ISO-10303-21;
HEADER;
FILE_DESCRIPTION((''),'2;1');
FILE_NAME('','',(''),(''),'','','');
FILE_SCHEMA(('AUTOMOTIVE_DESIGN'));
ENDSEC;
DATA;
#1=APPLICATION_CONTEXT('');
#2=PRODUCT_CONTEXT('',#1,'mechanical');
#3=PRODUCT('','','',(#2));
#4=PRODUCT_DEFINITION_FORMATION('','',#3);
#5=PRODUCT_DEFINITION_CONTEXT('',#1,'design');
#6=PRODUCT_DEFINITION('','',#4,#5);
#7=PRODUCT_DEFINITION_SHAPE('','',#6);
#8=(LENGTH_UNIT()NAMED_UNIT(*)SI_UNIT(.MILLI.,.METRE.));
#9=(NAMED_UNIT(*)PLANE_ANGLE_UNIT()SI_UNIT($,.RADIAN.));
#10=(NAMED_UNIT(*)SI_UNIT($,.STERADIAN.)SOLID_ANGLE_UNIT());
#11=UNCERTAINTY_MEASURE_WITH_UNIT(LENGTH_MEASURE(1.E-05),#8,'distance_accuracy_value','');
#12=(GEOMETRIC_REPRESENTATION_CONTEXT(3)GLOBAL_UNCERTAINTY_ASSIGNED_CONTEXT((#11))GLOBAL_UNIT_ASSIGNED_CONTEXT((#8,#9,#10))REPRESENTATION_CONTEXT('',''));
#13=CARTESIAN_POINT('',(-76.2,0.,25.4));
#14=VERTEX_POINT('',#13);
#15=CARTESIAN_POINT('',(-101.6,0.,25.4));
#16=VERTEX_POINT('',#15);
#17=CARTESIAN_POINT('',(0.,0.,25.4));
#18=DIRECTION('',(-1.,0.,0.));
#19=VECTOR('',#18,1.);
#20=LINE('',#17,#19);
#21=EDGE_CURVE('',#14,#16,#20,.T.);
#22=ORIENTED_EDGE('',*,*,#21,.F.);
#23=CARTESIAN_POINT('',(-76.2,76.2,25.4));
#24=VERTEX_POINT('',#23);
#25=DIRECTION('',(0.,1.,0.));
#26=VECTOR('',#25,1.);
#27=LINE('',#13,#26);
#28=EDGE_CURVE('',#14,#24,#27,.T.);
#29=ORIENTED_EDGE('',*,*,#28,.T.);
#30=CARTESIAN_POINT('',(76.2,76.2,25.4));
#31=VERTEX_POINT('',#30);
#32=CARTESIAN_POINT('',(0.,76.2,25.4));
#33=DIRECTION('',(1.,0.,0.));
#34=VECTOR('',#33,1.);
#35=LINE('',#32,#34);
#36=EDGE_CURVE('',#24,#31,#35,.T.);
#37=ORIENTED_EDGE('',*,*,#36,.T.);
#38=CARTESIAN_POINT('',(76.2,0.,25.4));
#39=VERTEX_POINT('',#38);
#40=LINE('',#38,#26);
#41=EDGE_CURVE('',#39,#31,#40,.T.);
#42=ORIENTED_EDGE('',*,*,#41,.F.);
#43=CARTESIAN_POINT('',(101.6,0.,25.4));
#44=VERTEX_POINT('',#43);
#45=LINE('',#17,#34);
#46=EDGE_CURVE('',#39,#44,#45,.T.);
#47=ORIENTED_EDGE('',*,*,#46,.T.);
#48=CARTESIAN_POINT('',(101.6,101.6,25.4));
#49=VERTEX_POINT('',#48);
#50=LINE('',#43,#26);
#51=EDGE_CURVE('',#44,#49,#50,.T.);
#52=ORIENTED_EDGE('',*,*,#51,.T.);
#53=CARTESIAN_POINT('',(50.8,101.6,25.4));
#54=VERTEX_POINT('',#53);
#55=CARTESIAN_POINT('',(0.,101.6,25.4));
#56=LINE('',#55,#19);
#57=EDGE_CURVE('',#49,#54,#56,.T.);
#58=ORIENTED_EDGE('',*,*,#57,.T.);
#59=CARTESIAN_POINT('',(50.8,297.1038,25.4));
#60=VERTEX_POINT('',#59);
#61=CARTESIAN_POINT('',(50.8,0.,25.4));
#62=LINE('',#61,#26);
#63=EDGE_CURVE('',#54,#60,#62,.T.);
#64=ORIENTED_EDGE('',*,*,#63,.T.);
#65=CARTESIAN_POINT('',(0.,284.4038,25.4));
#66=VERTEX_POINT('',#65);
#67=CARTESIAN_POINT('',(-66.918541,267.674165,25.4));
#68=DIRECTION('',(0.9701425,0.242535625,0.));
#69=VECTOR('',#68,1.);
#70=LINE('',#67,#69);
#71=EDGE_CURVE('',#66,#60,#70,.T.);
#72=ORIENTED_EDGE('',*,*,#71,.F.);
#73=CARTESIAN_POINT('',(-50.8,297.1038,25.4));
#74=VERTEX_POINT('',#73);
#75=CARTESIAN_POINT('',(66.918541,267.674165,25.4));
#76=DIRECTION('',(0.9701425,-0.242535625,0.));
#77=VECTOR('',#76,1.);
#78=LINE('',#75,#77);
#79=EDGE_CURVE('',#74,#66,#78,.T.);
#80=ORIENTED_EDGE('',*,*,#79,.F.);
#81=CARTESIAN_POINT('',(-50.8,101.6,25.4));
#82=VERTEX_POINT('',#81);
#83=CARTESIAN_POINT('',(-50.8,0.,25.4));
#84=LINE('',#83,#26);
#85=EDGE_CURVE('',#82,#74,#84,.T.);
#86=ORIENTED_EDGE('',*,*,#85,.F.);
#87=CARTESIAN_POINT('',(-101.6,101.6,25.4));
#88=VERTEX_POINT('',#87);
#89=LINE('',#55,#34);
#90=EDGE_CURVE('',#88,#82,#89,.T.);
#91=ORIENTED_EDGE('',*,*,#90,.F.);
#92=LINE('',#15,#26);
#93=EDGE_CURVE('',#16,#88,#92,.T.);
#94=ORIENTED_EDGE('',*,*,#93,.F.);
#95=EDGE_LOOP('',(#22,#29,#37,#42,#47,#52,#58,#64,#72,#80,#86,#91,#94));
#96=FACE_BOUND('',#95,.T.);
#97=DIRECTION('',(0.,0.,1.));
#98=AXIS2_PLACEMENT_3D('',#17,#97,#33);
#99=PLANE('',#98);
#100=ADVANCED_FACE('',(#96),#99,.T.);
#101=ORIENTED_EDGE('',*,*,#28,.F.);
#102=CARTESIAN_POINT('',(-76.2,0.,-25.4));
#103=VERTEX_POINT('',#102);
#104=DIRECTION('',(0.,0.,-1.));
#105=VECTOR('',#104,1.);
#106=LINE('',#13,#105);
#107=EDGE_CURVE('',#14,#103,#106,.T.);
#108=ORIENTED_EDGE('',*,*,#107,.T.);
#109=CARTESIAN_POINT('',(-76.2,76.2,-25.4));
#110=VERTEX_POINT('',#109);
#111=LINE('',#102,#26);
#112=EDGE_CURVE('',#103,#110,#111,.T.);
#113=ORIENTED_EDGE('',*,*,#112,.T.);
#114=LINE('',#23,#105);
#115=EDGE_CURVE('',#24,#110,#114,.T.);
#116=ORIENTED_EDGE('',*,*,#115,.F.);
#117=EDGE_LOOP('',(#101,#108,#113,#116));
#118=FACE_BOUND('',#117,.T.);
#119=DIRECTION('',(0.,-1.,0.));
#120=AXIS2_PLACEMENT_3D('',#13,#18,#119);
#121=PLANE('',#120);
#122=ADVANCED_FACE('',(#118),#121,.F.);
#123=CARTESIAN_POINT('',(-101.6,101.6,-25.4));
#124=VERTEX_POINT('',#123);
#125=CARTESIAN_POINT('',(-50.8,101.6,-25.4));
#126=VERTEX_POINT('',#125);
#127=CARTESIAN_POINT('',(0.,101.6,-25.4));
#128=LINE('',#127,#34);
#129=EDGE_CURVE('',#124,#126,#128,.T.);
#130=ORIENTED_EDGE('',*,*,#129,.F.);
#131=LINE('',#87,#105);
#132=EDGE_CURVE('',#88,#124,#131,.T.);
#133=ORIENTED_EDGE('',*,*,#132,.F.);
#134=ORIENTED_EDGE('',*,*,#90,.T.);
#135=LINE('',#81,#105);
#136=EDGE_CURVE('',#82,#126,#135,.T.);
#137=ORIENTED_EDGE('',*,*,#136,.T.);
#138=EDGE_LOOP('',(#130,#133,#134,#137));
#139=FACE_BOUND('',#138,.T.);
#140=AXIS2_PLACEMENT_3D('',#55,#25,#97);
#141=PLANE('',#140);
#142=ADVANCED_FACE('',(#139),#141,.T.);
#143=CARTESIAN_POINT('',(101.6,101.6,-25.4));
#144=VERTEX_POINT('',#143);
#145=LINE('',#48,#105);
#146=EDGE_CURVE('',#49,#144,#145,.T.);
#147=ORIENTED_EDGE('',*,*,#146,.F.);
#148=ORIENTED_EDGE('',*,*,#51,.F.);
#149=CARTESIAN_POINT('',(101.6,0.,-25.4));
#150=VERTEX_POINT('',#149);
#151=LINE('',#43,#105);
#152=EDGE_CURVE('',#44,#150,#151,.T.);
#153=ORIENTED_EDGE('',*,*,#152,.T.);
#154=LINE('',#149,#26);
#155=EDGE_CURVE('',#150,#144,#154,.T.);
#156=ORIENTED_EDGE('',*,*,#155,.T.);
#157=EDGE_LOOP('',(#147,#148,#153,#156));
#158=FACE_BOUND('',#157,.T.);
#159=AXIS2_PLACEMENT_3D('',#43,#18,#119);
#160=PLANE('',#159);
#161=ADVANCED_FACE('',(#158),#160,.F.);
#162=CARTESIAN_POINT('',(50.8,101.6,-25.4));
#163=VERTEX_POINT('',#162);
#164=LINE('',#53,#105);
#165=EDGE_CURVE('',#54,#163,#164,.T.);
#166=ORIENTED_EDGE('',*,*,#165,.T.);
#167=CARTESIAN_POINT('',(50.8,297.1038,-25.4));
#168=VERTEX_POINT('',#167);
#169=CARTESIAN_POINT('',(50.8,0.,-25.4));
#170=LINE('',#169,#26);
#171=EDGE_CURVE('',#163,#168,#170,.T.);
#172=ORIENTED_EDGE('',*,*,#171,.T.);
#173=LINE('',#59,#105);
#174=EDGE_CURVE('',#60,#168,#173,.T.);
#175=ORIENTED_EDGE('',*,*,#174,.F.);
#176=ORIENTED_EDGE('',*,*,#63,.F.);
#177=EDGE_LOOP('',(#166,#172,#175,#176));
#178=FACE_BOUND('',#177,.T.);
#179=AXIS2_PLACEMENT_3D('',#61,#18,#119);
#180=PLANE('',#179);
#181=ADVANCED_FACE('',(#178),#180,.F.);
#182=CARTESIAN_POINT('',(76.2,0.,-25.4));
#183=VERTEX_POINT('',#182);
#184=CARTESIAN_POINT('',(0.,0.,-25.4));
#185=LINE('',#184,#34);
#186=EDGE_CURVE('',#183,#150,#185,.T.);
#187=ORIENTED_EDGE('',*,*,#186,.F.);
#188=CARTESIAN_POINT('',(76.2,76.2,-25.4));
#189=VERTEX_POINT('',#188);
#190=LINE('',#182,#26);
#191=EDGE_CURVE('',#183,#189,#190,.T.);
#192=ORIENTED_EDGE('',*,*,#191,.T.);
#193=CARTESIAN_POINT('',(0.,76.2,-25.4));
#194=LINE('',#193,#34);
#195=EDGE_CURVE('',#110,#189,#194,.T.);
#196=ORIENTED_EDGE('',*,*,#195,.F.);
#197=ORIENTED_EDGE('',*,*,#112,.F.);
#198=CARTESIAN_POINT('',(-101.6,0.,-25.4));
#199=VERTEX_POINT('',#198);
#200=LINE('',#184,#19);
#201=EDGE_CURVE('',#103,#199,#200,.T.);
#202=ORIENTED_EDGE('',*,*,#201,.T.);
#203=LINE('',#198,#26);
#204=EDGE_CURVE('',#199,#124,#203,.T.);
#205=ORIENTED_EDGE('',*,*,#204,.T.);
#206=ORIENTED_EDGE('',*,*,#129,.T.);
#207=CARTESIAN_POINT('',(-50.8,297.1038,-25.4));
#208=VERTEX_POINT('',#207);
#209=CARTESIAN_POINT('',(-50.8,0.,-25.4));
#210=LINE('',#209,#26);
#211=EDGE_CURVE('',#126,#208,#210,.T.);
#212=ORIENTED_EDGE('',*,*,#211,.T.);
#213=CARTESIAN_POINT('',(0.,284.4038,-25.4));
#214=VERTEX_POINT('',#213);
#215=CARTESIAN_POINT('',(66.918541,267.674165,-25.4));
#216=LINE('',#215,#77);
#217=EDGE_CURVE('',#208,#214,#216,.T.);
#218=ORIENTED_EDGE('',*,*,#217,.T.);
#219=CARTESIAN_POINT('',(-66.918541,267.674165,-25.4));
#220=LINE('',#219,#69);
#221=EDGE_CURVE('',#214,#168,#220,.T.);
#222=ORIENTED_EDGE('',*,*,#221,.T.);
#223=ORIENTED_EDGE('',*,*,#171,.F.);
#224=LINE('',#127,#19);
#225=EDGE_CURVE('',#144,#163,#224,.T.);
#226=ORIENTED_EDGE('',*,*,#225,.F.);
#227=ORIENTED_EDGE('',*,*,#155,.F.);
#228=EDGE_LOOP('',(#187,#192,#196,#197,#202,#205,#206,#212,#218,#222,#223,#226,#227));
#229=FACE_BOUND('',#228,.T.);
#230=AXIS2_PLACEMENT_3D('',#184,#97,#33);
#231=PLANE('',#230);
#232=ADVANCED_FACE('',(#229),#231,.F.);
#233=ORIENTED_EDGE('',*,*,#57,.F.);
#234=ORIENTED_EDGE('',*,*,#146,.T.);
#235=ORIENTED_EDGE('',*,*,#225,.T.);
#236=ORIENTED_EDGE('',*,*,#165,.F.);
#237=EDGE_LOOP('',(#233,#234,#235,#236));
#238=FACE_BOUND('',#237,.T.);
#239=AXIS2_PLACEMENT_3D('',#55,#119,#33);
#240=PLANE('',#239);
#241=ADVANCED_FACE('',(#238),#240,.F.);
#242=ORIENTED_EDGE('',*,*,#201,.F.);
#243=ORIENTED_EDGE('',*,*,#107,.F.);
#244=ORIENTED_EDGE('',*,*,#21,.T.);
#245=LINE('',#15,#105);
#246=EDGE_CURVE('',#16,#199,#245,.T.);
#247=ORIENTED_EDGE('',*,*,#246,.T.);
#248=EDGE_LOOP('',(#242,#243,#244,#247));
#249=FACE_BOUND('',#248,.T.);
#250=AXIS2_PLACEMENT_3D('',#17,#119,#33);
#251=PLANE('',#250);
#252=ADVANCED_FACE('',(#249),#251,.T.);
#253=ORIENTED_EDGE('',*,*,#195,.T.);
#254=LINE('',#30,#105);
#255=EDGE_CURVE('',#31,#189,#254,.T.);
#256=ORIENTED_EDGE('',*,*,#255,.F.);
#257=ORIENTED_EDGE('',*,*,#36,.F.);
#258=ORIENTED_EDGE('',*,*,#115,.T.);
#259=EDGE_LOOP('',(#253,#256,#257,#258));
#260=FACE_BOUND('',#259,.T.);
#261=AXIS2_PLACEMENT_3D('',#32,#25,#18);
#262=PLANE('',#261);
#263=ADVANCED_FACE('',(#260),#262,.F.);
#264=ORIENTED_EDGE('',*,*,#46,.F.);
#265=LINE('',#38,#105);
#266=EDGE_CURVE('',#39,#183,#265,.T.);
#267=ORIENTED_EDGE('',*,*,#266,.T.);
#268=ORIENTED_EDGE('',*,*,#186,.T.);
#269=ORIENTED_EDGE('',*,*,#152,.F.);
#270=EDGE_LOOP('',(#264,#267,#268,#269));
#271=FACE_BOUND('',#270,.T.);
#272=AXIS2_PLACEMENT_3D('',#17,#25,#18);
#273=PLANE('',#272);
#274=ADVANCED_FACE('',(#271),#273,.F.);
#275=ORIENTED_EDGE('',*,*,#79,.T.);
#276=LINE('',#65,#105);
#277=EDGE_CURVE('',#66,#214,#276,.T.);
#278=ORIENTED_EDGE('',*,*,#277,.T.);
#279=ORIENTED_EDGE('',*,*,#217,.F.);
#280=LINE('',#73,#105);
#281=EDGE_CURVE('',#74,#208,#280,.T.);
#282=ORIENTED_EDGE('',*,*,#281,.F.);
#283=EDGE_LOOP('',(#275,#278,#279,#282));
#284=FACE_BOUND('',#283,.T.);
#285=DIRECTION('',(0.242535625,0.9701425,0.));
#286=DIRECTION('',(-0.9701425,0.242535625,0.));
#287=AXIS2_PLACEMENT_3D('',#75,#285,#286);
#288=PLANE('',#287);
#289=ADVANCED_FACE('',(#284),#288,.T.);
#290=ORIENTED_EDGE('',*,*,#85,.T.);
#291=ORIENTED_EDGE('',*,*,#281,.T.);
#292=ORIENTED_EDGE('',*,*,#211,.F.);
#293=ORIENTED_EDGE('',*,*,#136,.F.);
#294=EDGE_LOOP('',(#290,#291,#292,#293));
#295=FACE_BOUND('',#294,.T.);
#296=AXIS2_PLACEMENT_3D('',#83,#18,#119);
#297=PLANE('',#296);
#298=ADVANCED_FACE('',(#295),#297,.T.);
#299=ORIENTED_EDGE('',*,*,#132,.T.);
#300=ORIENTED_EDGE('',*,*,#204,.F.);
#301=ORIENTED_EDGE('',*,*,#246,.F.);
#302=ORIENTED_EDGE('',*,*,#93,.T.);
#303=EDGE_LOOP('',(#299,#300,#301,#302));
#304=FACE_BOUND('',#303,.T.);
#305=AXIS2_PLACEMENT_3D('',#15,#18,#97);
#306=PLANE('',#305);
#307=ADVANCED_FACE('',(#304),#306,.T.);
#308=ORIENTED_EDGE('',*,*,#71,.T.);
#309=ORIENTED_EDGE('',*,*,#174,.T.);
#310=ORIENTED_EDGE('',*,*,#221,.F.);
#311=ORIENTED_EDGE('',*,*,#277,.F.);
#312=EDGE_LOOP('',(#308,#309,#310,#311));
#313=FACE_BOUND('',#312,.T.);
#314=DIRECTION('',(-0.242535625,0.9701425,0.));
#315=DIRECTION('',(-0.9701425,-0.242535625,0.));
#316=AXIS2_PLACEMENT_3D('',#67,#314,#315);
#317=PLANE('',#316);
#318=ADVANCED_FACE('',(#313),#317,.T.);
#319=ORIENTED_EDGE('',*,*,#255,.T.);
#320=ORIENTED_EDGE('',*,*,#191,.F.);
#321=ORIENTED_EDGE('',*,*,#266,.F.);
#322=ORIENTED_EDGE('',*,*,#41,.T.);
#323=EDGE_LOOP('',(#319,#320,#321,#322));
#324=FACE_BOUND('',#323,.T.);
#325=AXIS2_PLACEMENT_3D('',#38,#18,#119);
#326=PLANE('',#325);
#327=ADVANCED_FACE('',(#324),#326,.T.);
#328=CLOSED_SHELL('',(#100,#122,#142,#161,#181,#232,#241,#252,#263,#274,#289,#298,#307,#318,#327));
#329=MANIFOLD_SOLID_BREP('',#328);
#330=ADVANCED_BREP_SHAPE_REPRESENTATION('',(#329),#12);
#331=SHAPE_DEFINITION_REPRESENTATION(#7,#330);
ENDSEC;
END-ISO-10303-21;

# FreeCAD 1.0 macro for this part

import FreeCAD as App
import Part
import Sketcher
from FreeCAD import Vector
Q = App.Units.Quantity


def add_polygon(sketch, points):
    """Adds a closed chain of lines whose ends are joined by coincident constraints."""
    first, n = sketch.GeometryCount, len(points)
    for a, b in zip(points, points[1:] + points[:1]):
        sketch.addGeometry(Part.LineSegment(App.Vector(*a, 0), App.Vector(*b, 0)), False)
    for i in range(n):
        sketch.addConstraint(Sketcher.Constraint("Coincident", first + i, 2, first + (i + 1) % n, 1))

doc = App.newDocument("Part")
body = doc.addObject("PartDesign::Body", "Body")

# Sketch on XY plane
sketch1 = body.newObject("Sketcher::SketchObject", "Sketch")
sketch1.AttachmentSupport = (doc.getObject("XY_Plane"), [""])
sketch1.MapMode = "FlatFace"
add_polygon(sketch1, [(0, 284), (-51, 297), (-51, 102), (-102, 102), (-102, 0), (-76, 0), (-76, 76), (76, 76), (76, 0), (102, 0), (102, 102), (51, 102), (51, 297)])  # lines 0-12
sketch1.addConstraint([
    Sketcher.Constraint("Vertical", 1),
    Sketcher.Constraint("Horizontal", 2),
    Sketcher.Constraint("Vertical", 3),
    Sketcher.Constraint("Horizontal", 4),
    Sketcher.Constraint("Vertical", 5),
    Sketcher.Constraint("Horizontal", 6),
    Sketcher.Constraint("Vertical", 7),
    Sketcher.Constraint("Horizontal", 8),
    Sketcher.Constraint("Vertical", 9),
    Sketcher.Constraint("Horizontal", 10),
    Sketcher.Constraint("Vertical", 11),
    Sketcher.Constraint("Symmetric", 4, 2, 7, 2, -1, 1),
    Sketcher.Constraint("Symmetric", 3, 2, 8, 2, -2),
    Sketcher.Constraint("Symmetric", 1, 2, 10, 2, -2),
    Sketcher.Constraint("PointOnObject", 12, 2, -2),
    Sketcher.Constraint("Horizontal", 0, 2, 11, 2),
    Sketcher.Constraint("DistanceX", 2, 2, 2, 1, Q("2 in")),
    Sketcher.Constraint("DistanceX", 4, 1, 4, 2, Q("1 in")),
    Sketcher.Constraint("DistanceX", 6, 1, 6, 2, Q("6 in")),
    Sketcher.Constraint("DistanceY", 3, 2, 3, 1, Q("4 in")),
    Sketcher.Constraint("DistanceY", 5, 1, 5, 2, Q("3 in")),
    Sketcher.Constraint("DistanceY", 12, 2, 0, 2, Q("0.5 in")),
    Sketcher.Constraint("DistanceY", 1, 2, 1, 1, Q("7.697 in")),
])
pad1 = body.newObject("PartDesign::Pad", "Pad")
pad1.Profile = sketch1
pad1.Length = Q("2 in")
pad1.Midplane = True

doc.recompute()
